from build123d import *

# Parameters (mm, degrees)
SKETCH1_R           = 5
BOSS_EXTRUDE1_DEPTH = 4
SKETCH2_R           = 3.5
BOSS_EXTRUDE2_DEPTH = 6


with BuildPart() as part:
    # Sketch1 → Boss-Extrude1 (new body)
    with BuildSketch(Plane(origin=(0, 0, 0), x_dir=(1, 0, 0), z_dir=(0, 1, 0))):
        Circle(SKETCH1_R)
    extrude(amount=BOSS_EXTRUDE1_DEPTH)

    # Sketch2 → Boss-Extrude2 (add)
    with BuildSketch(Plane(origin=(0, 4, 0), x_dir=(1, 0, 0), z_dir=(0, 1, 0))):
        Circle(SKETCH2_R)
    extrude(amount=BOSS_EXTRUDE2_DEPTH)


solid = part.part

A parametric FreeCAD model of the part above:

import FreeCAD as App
import Part
import Sketcher
Q = App.Units.Quantity

doc = App.newDocument("Part")
body = doc.addObject("PartDesign::Body", "Body")

# Sketch on XZ plane
sketch1 = doc.addObject("Sketcher::SketchObject", "Sketch")
body.addObject(sketch1)
sketch1.AttachmentSupport = (doc.XZ_Plane, [""])
sketch1.MapMode = "FlatFace"
sketch1.addGeometry(Part.Circle(App.Vector(0, 0, 0), App.Vector(0, 0, 1), 5), False)
sketch1.addConstraint([
    Sketcher.Constraint("Coincident", 0, 3, -1, 1),
    Sketcher.Constraint("Diameter", 0, Q("10 mm")),
])
pad1 = doc.addObject("PartDesign::Pad", "Pad")
body.addObject(pad1)
pad1.Profile = sketch1
pad1.Length = 4
pad1.Reversed = True

# Sketch on XZ plane
sketch2 = doc.addObject("Sketcher::SketchObject", "Sketch001")
body.addObject(sketch2)
sketch2.AttachmentSupport = (doc.XZ_Plane, [""])
sketch2.MapMode = "FlatFace"
sketch2.AttachmentOffset = App.Placement(App.Vector(0, 0, -4), App.Rotation())
sketch2.addGeometry(Part.Circle(App.Vector(0, 0, 0), App.Vector(0, 0, 1), 3.5), False)
sketch2.addConstraint([
    Sketcher.Constraint("Coincident", 0, 3, -1, 1),
    Sketcher.Constraint("Diameter", 0, Q("7 mm")),
])
pad2 = doc.addObject("PartDesign::Pad", "Pad001")
body.addObject(pad2)
pad2.Profile = sketch2
pad2.Length = 6
pad2.Reversed = True

doc.recompute()
